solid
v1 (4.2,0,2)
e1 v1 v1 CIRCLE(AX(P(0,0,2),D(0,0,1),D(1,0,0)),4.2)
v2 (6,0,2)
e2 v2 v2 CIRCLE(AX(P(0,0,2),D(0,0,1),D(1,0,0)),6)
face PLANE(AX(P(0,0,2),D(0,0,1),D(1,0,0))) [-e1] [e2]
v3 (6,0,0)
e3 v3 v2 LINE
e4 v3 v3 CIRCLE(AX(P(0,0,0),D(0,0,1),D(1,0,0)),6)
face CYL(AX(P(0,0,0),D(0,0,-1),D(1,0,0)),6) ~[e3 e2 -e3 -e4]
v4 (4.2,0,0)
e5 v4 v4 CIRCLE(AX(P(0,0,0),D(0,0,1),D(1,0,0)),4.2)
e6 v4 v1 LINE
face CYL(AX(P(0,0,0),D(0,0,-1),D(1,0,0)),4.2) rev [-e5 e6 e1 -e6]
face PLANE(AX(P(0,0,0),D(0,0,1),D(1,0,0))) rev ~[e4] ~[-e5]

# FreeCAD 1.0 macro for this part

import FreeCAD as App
import Part
import Sketcher
from FreeCAD import Vector

doc = App.newDocument("Part")
body = doc.addObject("PartDesign::Body", "Body")

# Sketch on XY plane
sketch1 = body.newObject("Sketcher::SketchObject", "Sketch")
sketch1.AttachmentSupport = (doc.getObject("XY_Plane"), [""])
sketch1.MapMode = "FlatFace"
sketch1.addGeometry([
    Part.Circle(Vector(0, 0, 0), Vector(0, 0, 1), 6),
    Part.Circle(Vector(0, 0, 0), Vector(0, 0, 1), 4.2),
], False)
sketch1.addConstraint([
    Sketcher.Constraint("Coincident", 0, 3, -1, 1),
    Sketcher.Constraint("Coincident", 1, 3, -1, 1),
    Sketcher.Constraint("Diameter", 0, 12.0),
    Sketcher.Constraint("Diameter", 1, 8.4),
])
pad1 = body.newObject("PartDesign::Pad", "Pad")
pad1.Profile = sketch1
pad1.Length = 2

doc.recompute()
